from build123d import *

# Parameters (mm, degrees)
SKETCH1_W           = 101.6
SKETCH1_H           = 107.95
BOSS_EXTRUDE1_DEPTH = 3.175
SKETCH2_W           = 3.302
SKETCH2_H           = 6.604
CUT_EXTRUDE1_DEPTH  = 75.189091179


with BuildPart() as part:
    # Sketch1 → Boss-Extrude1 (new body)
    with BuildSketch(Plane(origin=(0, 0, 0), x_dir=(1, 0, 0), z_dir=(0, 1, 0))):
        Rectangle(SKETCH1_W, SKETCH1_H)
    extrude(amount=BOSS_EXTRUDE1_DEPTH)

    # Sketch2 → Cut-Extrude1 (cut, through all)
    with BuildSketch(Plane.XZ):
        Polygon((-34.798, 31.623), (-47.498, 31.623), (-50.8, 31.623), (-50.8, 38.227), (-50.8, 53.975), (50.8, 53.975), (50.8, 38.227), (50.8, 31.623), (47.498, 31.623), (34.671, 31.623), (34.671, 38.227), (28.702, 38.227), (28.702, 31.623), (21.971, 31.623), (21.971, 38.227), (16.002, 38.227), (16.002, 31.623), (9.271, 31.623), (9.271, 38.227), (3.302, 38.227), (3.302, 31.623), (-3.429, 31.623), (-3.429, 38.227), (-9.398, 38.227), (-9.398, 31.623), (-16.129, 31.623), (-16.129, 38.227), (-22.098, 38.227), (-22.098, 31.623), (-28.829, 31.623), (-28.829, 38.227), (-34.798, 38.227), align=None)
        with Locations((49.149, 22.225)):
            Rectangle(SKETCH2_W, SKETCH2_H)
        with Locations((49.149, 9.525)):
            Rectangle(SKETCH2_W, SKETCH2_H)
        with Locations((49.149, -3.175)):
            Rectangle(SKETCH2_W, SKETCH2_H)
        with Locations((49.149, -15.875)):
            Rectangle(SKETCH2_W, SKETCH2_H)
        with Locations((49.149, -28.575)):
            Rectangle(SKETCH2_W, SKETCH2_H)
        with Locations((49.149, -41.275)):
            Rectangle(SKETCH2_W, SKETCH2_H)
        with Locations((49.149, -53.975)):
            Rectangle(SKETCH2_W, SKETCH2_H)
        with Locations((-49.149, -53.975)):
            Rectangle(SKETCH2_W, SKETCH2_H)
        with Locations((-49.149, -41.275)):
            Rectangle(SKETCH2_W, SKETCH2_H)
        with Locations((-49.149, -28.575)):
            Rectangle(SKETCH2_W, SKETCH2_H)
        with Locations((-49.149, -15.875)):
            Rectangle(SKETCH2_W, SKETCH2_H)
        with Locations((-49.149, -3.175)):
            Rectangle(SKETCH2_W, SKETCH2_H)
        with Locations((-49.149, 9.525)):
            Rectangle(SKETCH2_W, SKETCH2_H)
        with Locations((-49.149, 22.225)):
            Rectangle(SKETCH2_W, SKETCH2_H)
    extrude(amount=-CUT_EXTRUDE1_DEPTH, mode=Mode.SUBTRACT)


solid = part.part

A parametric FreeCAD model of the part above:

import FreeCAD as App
import Part
import Sketcher
Q = App.Units.Quantity


def add_polygon(sketch, points):
    """Adds a closed chain of lines whose ends are joined by coincident constraints."""
    first, n = sketch.GeometryCount, len(points)
    for a, b in zip(points, points[1:] + points[:1]):
        sketch.addGeometry(Part.LineSegment(App.Vector(*a, 0), App.Vector(*b, 0)), False)
    for i in range(n):
        sketch.addConstraint(Sketcher.Constraint("Coincident", first + i, 2, first + (i + 1) % n, 1))

doc = App.newDocument("Part")
params = doc.addObject("Spreadsheet::Sheet", "Params")
for row, (alias, value) in enumerate([
    ("sketch1_width", "4 in"),
    ("sketch1_height", "4.25 in"),
    ("pad1_length", "0.125 in"),
    ("sketch2_width", "4 in"),
    ("sketch2_width2", "0.63 in"),
    ("sketch2_width3", "0.13 in"),
    ("sketch2_height", "0.26 in"),
    ("sketch2_height2", "0.88 in"),
], start=1):
    params.set(f"A{row}", alias)
    params.set(f"B{row}", "=" + value)
    params.setAlias(f"B{row}", alias)

body = doc.addObject("PartDesign::Body", "Body")

# Sketch on XZ plane
sketch1 = doc.addObject("Sketcher::SketchObject", "Sketch")
body.addObject(sketch1)
sketch1.AttachmentSupport = (doc.XZ_Plane, [""])
sketch1.MapMode = "FlatFace"
add_polygon(sketch1, [(-50.8, -53.975), (-50.8, 53.975), (50.8, 53.975), (50.8, -53.975)])  # lines 0-3
sketch1.addConstraint([
    Sketcher.Constraint("Vertical", 0),
    Sketcher.Constraint("Horizontal", 1),
    Sketcher.Constraint("Vertical", 2),
    Sketcher.Constraint("Horizontal", 3),
    Sketcher.Constraint("Symmetric", 0, 2, 2, 2, -1, 1),
    Sketcher.Constraint("DistanceX", 1, 1, 1, 2, Q("4 in")),
    Sketcher.Constraint("DistanceY", 0, 1, 0, 2, Q("4.25 in")),
])
sketch1.setExpression("Constraints[9]", "Params.sketch1_width")
sketch1.setExpression("Constraints[10]", "Params.sketch1_height")
pad1 = doc.addObject("PartDesign::Pad", "Pad")
body.addObject(pad1)
pad1.Profile = sketch1
pad1.setExpression("Length", "Params.pad1_length")
pad1.Reversed = True

# Sketch on XZ plane
sketch2 = doc.addObject("Sketcher::SketchObject", "Sketch001")
body.addObject(sketch2)
sketch2.AttachmentSupport = (doc.XZ_Plane, [""])
sketch2.MapMode = "FlatFace"
add_polygon(sketch2, [(-50.8, 31.623), (-34.798, 31.623), (-34.798, 38.227), (-28.829, 38.227), (-28.829, 31.623), (-22.098, 31.623), (-22.098, 38.227), (-16.129, 38.227), (-16.129, 31.623), (-9.398, 31.623), (-9.398, 38.227), (-3.429, 38.227), (-3.429, 31.623), (3.302, 31.623), (3.302, 38.227), (9.271, 38.227), (9.271, 31.623), (16.002, 31.623), (16.002, 38.227), (21.971, 38.227), (21.971, 31.623), (28.702, 31.623), (28.702, 38.227), (34.671, 38.227), (34.671, 31.623), (50.8, 31.623), (50.8, 53.975), (-50.8, 53.975)])  # lines 0-27
add_polygon(sketch2, [(47.498, 25.527), (47.498, 18.923), (50.8, 18.923), (50.8, 25.527)])  # lines 28-31
add_polygon(sketch2, [(47.498, 12.827), (47.498, 6.223), (50.8, 6.223), (50.8, 12.827)])  # lines 32-35
add_polygon(sketch2, [(47.498, 0.127), (47.498, -6.477), (50.8, -6.477), (50.8, 0.127)])  # lines 36-39
add_polygon(sketch2, [(47.498, -12.573), (47.498, -19.177), (50.8, -19.177), (50.8, -12.573)])  # lines 40-43
add_polygon(sketch2, [(47.498, -25.273), (47.498, -31.877), (50.8, -31.877), (50.8, -25.273)])  # lines 44-47
add_polygon(sketch2, [(47.498, -37.973), (47.498, -44.577), (50.8, -44.577), (50.8, -37.973)])  # lines 48-51
add_polygon(sketch2, [(47.498, -50.673), (47.498, -57.277), (50.8, -57.277), (50.8, -50.673)])  # lines 52-55
add_polygon(sketch2, [(-50.8, -50.673), (-50.8, -57.277), (-47.498, -57.277), (-47.498, -50.673)])  # lines 56-59
add_polygon(sketch2, [(-50.8, -37.973), (-50.8, -44.577), (-47.498, -44.577), (-47.498, -37.973)])  # lines 60-63
add_polygon(sketch2, [(-50.8, -25.273), (-50.8, -31.877), (-47.498, -31.877), (-47.498, -25.273)])  # lines 64-67
add_polygon(sketch2, [(-50.8, -12.573), (-50.8, -19.177), (-47.498, -19.177), (-47.498, -12.573)])  # lines 68-71
add_polygon(sketch2, [(-50.8, 0.127), (-50.8, -6.477), (-47.498, -6.477), (-47.498, 0.127)])  # lines 72-75
add_polygon(sketch2, [(-50.8, 12.827), (-50.8, 6.223), (-47.498, 6.223), (-47.498, 12.827)])  # lines 76-79
add_polygon(sketch2, [(-50.8, 25.527), (-50.8, 18.923), (-47.498, 18.923), (-47.498, 25.527)])  # lines 80-83
sketch2.addConstraint([
    Sketcher.Constraint("Horizontal", 0),
    Sketcher.Constraint("Vertical", 1),
    Sketcher.Constraint("Horizontal", 2),
    Sketcher.Constraint("Vertical", 3),
    Sketcher.Constraint("Horizontal", 4),
    Sketcher.Constraint("Vertical", 5),
    Sketcher.Constraint("Horizontal", 6),
    Sketcher.Constraint("Vertical", 7),
    Sketcher.Constraint("Horizontal", 8),
    Sketcher.Constraint("Vertical", 9),
    Sketcher.Constraint("Horizontal", 10),
    Sketcher.Constraint("Vertical", 11),
    Sketcher.Constraint("Horizontal", 12),
    Sketcher.Constraint("Vertical", 13),
    Sketcher.Constraint("Horizontal", 14),
    Sketcher.Constraint("Vertical", 15),
    Sketcher.Constraint("Horizontal", 16),
    Sketcher.Constraint("Vertical", 17),
    Sketcher.Constraint("Horizontal", 18),
    Sketcher.Constraint("Vertical", 19),
    Sketcher.Constraint("Horizontal", 20),
    Sketcher.Constraint("Vertical", 21),
    Sketcher.Constraint("Horizontal", 22),
    Sketcher.Constraint("Vertical", 23),
    Sketcher.Constraint("Horizontal", 24),
    Sketcher.Constraint("Vertical", 25),
    Sketcher.Constraint("Horizontal", 26),
    Sketcher.Constraint("Vertical", 27),
    Sketcher.Constraint("Vertical", 28),
    Sketcher.Constraint("Horizontal", 29),
    Sketcher.Constraint("Vertical", 30),
    Sketcher.Constraint("Horizontal", 31),
    Sketcher.Constraint("Vertical", 32),
    Sketcher.Constraint("Horizontal", 33),
    Sketcher.Constraint("Vertical", 34),
    Sketcher.Constraint("Horizontal", 35),
    Sketcher.Constraint("Vertical", 36),
    Sketcher.Constraint("Horizontal", 37),
    Sketcher.Constraint("Vertical", 38),
    Sketcher.Constraint("Horizontal", 39),
    Sketcher.Constraint("Vertical", 40),
    Sketcher.Constraint("Horizontal", 41),
    Sketcher.Constraint("Vertical", 42),
    Sketcher.Constraint("Horizontal", 43),
    Sketcher.Constraint("Vertical", 44),
    Sketcher.Constraint("Horizontal", 45),
    Sketcher.Constraint("Vertical", 46),
    Sketcher.Constraint("Horizontal", 47),
    Sketcher.Constraint("Vertical", 48),
    Sketcher.Constraint("Horizontal", 49),
    Sketcher.Constraint("Vertical", 50),
    Sketcher.Constraint("Horizontal", 51),
    Sketcher.Constraint("Vertical", 52),
    Sketcher.Constraint("Horizontal", 53),
    Sketcher.Constraint("Vertical", 54),
    Sketcher.Constraint("Horizontal", 55),
    Sketcher.Constraint("Vertical", 56),
    Sketcher.Constraint("Horizontal", 57),
    Sketcher.Constraint("Vertical", 58),
    Sketcher.Constraint("Horizontal", 59),
    Sketcher.Constraint("Vertical", 60),
    Sketcher.Constraint("Horizontal", 61),
    Sketcher.Constraint("Vertical", 62),
    Sketcher.Constraint("Horizontal", 63),
    Sketcher.Constraint("Vertical", 64),
    Sketcher.Constraint("Horizontal", 65),
    Sketcher.Constraint("Vertical", 66),
    Sketcher.Constraint("Horizontal", 67),
    Sketcher.Constraint("Vertical", 68),
    Sketcher.Constraint("Horizontal", 69),
    Sketcher.Constraint("Vertical", 70),
    Sketcher.Constraint("Horizontal", 71),
    Sketcher.Constraint("Vertical", 72),
    Sketcher.Constraint("Horizontal", 73),
    Sketcher.Constraint("Vertical", 74),
    Sketcher.Constraint("Horizontal", 75),
    Sketcher.Constraint("Vertical", 76),
    Sketcher.Constraint("Horizontal", 77),
    Sketcher.Constraint("Vertical", 78),
    Sketcher.Constraint("Horizontal", 79),
    Sketcher.Constraint("Vertical", 80),
    Sketcher.Constraint("Horizontal", 81),
    Sketcher.Constraint("Vertical", 82),
    Sketcher.Constraint("Horizontal", 83),
    Sketcher.Constraint("Symmetric", 24, 2, 27, 2, -2),
    Sketcher.Constraint("Symmetric", 53, 2, 56, 2, -2),
    Sketcher.Constraint("Symmetric", 55, 2, 58, 2, -2),
    Sketcher.Constraint("Symmetric", 49, 2, 60, 2, -2),
    Sketcher.Constraint("Symmetric", 51, 2, 62, 2, -2),
    Sketcher.Constraint("Symmetric", 45, 2, 64, 2, -2),
    Sketcher.Constraint("Symmetric", 47, 2, 66, 2, -2),
    Sketcher.Constraint("Symmetric", 41, 2, 68, 2, -2),
    Sketcher.Constraint("Symmetric", 43, 2, 70, 2, -2),
    Sketcher.Constraint("Symmetric", 37, 2, 72, 2, -2),
    Sketcher.Constraint("Symmetric", 39, 2, 74, 2, -2),
    Sketcher.Constraint("Symmetric", 33, 2, 76, 2, -2),
    Sketcher.Constraint("Symmetric", 35, 2, 78, 2, -2),
    Sketcher.Constraint("Symmetric", 29, 2, 80, 2, -2),
    Sketcher.Constraint("Symmetric", 31, 2, 82, 2, -2),
    Sketcher.Constraint("Horizontal", 0, 2, 3, 2),
    Sketcher.Constraint("Horizontal", 2, 2, 5, 2),
    Sketcher.Constraint("Horizontal", 4, 2, 7, 2),
    Sketcher.Constraint("Horizontal", 6, 2, 9, 2),
    Sketcher.Constraint("Horizontal", 8, 2, 11, 2),
    Sketcher.Constraint("Horizontal", 10, 2, 13, 2),
    Sketcher.Constraint("Horizontal", 12, 2, 15, 2),
    Sketcher.Constraint("Horizontal", 14, 2, 17, 2),
    Sketcher.Constraint("Horizontal", 16, 2, 19, 2),
    Sketcher.Constraint("Horizontal", 18, 2, 21, 2),
    Sketcher.Constraint("Vertical", 25, 2, 29, 2),
    Sketcher.Constraint("Vertical", 31, 2, 32, 2),
    Sketcher.Constraint("Vertical", 30, 2, 33, 2),
    Sketcher.Constraint("Vertical", 35, 2, 36, 2),
    Sketcher.Constraint("Vertical", 34, 2, 37, 2),
    Sketcher.Constraint("Vertical", 39, 2, 40, 2),
    Sketcher.Constraint("Vertical", 38, 2, 41, 2),
    Sketcher.Constraint("Vertical", 43, 2, 44, 2),
    Sketcher.Constraint("Vertical", 42, 2, 45, 2),
    Sketcher.Constraint("Vertical", 47, 2, 48, 2),
    Sketcher.Constraint("Vertical", 46, 2, 49, 2),
    Sketcher.Constraint("Vertical", 51, 2, 52, 2),
    Sketcher.Constraint("Vertical", 50, 2, 53, 2),
    Sketcher.Constraint("Equal", 2, 6),
    Sketcher.Constraint("Equal", 4, 8),
    Sketcher.Constraint("Equal", 6, 10),
    Sketcher.Constraint("Equal", 8, 12),
    Sketcher.Constraint("Equal", 10, 14),
    Sketcher.Constraint("Equal", 12, 16),
    Sketcher.Constraint("Equal", 14, 18),
    Sketcher.Constraint("Equal", 16, 20),
    Sketcher.Constraint("Equal", 18, 22),
    Sketcher.Constraint("Equal", 23, 28),
    Sketcher.Constraint("Equal", 30, 32),
    Sketcher.Constraint("Equal", 34, 36),
    Sketcher.Constraint("Equal", 38, 40),
    Sketcher.Constraint("Equal", 42, 44),
    Sketcher.Constraint("Equal", 46, 48),
    Sketcher.Constraint("Equal", 50, 52),
    Sketcher.Constraint("DistanceX", 26, 2, 26, 1, Q("4 in")),
    Sketcher.Constraint("DistanceX", 0, 1, 0, 2, Q("0.63 in")),
    Sketcher.Constraint("DistanceX", 29, 1, 29, 2, Q("0.13 in")),
    Sketcher.Constraint("DistanceY", 1, 1, 1, 2, Q("0.26 in")),
    Sketcher.Constraint("DistanceY", 25, 1, 25, 2, Q("0.88 in")),
    Sketcher.Constraint("DistanceX", 2, 1, 2, 2, Q("0.235 in")),
    Sketcher.Constraint("DistanceX", 4, 1, 4, 2, Q("0.265 in")),
    Sketcher.Constraint("DistanceY", -1, 1, 0, 2, Q("1.245 in")),
    Sketcher.Constraint("DistanceY", -1, 1, 28, 2, Q("0.745 in")),
    Sketcher.Constraint("DistanceY", -1, 1, 32, 2, Q("0.245 in")),
    Sketcher.Constraint("DistanceY", 36, 2, -1, 1, Q("0.255 in")),
    Sketcher.Constraint("DistanceY", 40, 2, -1, 1, Q("0.755 in")),
    Sketcher.Constraint("DistanceY", 44, 2, -1, 1, Q("1.255 in")),
    Sketcher.Constraint("DistanceY", 48, 2, -1, 1, Q("1.755 in")),
    Sketcher.Constraint("DistanceY", 52, 2, -1, 1, Q("2.255 in")),
])
sketch2.setExpression("Constraints[222]", "Params.sketch2_width")
sketch2.setExpression("Constraints[223]", "Params.sketch2_width2")
sketch2.setExpression("Constraints[224]", "Params.sketch2_width3")
sketch2.setExpression("Constraints[225]", "Params.sketch2_height")
sketch2.setExpression("Constraints[226]", "Params.sketch2_height2")
pocket1 = doc.addObject("PartDesign::Pocket", "Pocket")
body.addObject(pocket1)
pocket1.Profile = sketch2
pocket1.Type = "ThroughAll"

doc.recompute()
